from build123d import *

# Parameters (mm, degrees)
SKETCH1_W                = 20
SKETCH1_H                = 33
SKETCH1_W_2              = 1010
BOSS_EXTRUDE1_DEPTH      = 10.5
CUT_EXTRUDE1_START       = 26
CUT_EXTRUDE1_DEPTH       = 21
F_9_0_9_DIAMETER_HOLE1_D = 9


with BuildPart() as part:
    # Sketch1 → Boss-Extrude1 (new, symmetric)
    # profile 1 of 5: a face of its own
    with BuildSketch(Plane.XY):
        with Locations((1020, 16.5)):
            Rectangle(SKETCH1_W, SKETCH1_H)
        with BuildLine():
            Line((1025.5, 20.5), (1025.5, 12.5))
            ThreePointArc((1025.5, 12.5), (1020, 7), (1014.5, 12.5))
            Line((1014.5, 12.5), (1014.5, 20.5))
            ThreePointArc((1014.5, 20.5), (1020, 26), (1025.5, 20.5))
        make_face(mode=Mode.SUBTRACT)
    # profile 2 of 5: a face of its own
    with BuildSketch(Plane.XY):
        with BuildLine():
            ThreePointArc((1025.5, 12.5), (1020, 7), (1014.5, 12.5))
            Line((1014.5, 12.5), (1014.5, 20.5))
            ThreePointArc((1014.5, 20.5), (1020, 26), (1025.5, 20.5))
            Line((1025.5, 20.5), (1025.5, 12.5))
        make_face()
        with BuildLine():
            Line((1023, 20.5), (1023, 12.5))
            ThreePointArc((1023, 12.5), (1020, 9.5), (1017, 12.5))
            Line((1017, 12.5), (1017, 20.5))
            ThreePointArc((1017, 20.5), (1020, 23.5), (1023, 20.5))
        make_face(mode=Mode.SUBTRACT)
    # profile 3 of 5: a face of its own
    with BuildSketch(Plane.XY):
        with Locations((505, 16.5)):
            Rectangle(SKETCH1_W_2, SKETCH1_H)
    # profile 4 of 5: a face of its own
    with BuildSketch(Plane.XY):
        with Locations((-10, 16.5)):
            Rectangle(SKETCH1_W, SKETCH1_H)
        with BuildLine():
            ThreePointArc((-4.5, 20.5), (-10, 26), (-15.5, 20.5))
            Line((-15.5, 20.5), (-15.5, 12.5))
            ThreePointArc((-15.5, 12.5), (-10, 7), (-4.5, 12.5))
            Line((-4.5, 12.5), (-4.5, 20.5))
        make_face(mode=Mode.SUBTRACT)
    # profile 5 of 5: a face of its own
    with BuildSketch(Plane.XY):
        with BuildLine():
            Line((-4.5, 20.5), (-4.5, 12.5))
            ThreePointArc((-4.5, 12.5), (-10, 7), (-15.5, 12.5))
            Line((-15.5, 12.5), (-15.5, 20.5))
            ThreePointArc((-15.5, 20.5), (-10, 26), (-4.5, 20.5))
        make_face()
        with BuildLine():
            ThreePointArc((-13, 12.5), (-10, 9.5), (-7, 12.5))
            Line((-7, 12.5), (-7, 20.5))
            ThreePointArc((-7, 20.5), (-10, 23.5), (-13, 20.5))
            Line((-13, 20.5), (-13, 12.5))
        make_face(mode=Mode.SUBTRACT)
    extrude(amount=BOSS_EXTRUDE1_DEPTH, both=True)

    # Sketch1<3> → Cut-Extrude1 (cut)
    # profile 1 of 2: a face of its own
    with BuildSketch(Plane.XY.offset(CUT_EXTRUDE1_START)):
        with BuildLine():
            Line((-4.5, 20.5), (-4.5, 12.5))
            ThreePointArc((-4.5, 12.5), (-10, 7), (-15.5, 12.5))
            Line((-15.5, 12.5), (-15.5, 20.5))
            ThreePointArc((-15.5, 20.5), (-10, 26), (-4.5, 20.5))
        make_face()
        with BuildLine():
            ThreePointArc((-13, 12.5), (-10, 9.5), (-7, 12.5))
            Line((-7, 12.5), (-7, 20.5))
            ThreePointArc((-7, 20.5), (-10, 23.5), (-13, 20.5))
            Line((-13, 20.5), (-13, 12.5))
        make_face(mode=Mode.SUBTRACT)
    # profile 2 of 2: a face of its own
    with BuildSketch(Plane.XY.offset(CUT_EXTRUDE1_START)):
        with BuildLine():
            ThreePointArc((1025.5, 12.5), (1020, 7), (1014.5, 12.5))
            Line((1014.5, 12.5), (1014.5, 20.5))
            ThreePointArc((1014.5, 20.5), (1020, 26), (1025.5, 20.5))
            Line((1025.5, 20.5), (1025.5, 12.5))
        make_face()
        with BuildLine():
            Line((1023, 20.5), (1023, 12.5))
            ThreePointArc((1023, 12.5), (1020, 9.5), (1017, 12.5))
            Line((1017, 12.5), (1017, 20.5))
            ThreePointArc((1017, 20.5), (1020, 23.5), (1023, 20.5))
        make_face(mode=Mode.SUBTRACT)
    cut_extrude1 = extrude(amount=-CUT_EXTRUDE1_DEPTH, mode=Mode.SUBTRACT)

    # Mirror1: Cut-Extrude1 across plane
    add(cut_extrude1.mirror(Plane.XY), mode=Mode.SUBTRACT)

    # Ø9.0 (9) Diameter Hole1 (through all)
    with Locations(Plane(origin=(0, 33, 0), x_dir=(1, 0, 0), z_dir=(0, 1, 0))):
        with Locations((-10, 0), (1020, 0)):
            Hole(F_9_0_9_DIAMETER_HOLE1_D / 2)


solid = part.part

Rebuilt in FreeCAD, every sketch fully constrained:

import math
import FreeCAD as App
import Part
import Sketcher
from FreeCAD import Vector


def add_polygon(sketch, points):
    """Adds a closed chain of lines whose ends are joined by coincident constraints."""
    first, n = sketch.GeometryCount, len(points)
    for a, b in zip(points, points[1:] + points[:1]):
        sketch.addGeometry(Part.LineSegment(App.Vector(*a, 0), App.Vector(*b, 0)), False)
    for i in range(n):
        sketch.addConstraint(Sketcher.Constraint("Coincident", first + i, 2, first + (i + 1) % n, 1))

doc = App.newDocument("Part")
params = doc.addObject("Spreadsheet::Sheet", "Params")
for row, (alias, value) in enumerate([
    ("sketch1_radius", "3 mm"),
    ("sketch1_width", "1050 mm"),
    ("sketch1_height", "33 mm"),
    ("sketch1_height2", "8 mm"),
    ("pad1_length", "21 mm"),
    ("sketch2_radius", "3 mm"),
    ("sketch2_radius2", "5.5 mm"),
    ("sketch2_height", "8 mm"),
    ("pocket1_length", "21 mm"),
    ("sketch3_diameter", "9 mm"),
    ("hole_diameter", "9 mm"),
], start=1):
    params.set(f"A{row}", alias)
    params.set(f"B{row}", "=" + value)
    params.setAlias(f"B{row}", alias)

body = doc.addObject("PartDesign::Body", "Body")

sketch1 = body.newObject("Sketcher::SketchObject", "Sketch")
sketch1.AttachmentSupport = (doc.getObject("XY_Plane"), [""])
sketch1.MapMode = "FlatFace"
add_polygon(sketch1, [(1030, 0), (1030, 33), (-20, 33), (-20, 0)])
sketch1.addGeometry(Part.ArcOfCircle(Part.Circle(Vector(1020, 12.5, 0), Vector(0, 0, 1), 3), math.radians(180), math.radians(360)), False)
sketch1.addGeometry(Part.LineSegment(Vector(1017, 12.5, 0), Vector(1017, 20.5, 0)), False)
sketch1.addGeometry(Part.ArcOfCircle(Part.Circle(Vector(1020, 20.5, 0), Vector(0, 0, 1), 3), math.radians(0), math.radians(180)), False)
sketch1.addGeometry(Part.LineSegment(Vector(1023, 20.5, 0), Vector(1023, 12.5, 0)), False)
sketch1.addGeometry(Part.ArcOfCircle(Part.Circle(Vector(-10, 12.5, 0), Vector(0, 0, 1), 3), math.radians(180), math.radians(360)), False)
sketch1.addGeometry(Part.LineSegment(Vector(-13, 12.5, 0), Vector(-13, 20.5, 0)), False)
sketch1.addGeometry(Part.ArcOfCircle(Part.Circle(Vector(-10, 20.5, 0), Vector(0, 0, 1), 3), math.radians(0), math.radians(180)), False)
sketch1.addGeometry(Part.LineSegment(Vector(-7, 20.5, 0), Vector(-7, 12.5, 0)), False)
sketch1.addConstraint([
    Sketcher.Constraint("Tangent", 4, 1, 5, 1),
    Sketcher.Constraint("Tangent", 5, 2, 6, 2),
    Sketcher.Constraint("Tangent", 6, 1, 7, 1),
    Sketcher.Constraint("Tangent", 7, 2, 4, 2),
    Sketcher.Constraint("Tangent", 8, 1, 9, 1),
    Sketcher.Constraint("Tangent", 9, 2, 10, 2),
    Sketcher.Constraint("Tangent", 10, 1, 11, 1),
    Sketcher.Constraint("Tangent", 11, 2, 8, 2),
    Sketcher.Constraint("Vertical", 0),
    Sketcher.Constraint("Horizontal", 1),
    Sketcher.Constraint("Vertical", 2),
    Sketcher.Constraint("Horizontal", 3),
    Sketcher.Constraint("Vertical", 5),
    Sketcher.Constraint("Vertical", 7),
    Sketcher.Constraint("Vertical", 9),
    Sketcher.Constraint("Vertical", 11),
    Sketcher.Constraint("Equal", 6, 8),
    Sketcher.Constraint("PointOnObject", 2, 2, -1),
    Sketcher.Constraint("Horizontal", 4, 3, 8, 3),
    Sketcher.Constraint("Horizontal", 6, 3, 10, 3),
    Sketcher.Constraint("Radius", 4, 3.0),
    Sketcher.Constraint("DistanceX", 1, 2, 1, 1, 1050.0),
    Sketcher.Constraint("DistanceY", 0, 1, 0, 2, 33.0),
    Sketcher.Constraint("DistanceY", 5, 1, 5, 2, 8.0),
    Sketcher.Constraint("DistanceX", -1, 1, 4, 3, 1020.0),
    Sketcher.Constraint("DistanceX", 8, 3, -1, 1, 10.0),
    Sketcher.Constraint("DistanceX", -1, 1, 0, 2, 1030.0),
    Sketcher.Constraint("DistanceY", -1, 1, 4, 3, 12.5),
])
sketch1.setExpression("Constraints[24]", "Params.sketch1_radius")
sketch1.setExpression("Constraints[25]", "Params.sketch1_width")
sketch1.setExpression("Constraints[26]", "Params.sketch1_height")
sketch1.setExpression("Constraints[27]", "Params.sketch1_height2")
pad1 = body.newObject("PartDesign::Pad", "Pad")
pad1.Profile = sketch1
pad1.setExpression("Length", "Params.pad1_length")
pad1.Midplane = True

sketch2 = body.newObject("Sketcher::SketchObject", "Sketch001")
sketch2.AttachmentSupport = (doc.getObject("XY_Plane"), [""])
sketch2.MapMode = "FlatFace"
sketch2.AttachmentOffset = App.Placement(Vector(0, 0, 26), App.Rotation())
sketch2.addGeometry([
    Part.LineSegment(Vector(-4.5, 12.5, 0), Vector(-4.5, 20.5, 0)),
    Part.ArcOfCircle(Part.Circle(Vector(-10, 20.5, 0), Vector(0, 0, 1), 5.5), math.radians(0), math.radians(180)),
    Part.LineSegment(Vector(-15.5, 20.5, 0), Vector(-15.5, 12.5, 0)),
    Part.ArcOfCircle(Part.Circle(Vector(-10, 12.5, 0), Vector(0, 0, 1), 5.5), math.radians(180), math.radians(360)),
    Part.LineSegment(Vector(-13, 12.5, 0), Vector(-13, 20.5, 0)),
    Part.ArcOfCircle(Part.Circle(Vector(-10, 20.5, 0), Vector(0, 0, 1), 3), math.radians(0), math.radians(180)),
    Part.LineSegment(Vector(-7, 20.5, 0), Vector(-7, 12.5, 0)),
    Part.ArcOfCircle(Part.Circle(Vector(-10, 12.5, 0), Vector(0, 0, 1), 3), math.radians(180), math.radians(360)),
    Part.ArcOfCircle(Part.Circle(Vector(1020, 12.5, 0), Vector(0, 0, 1), 5.5), math.radians(180), math.radians(360)),
    Part.LineSegment(Vector(1025.5, 12.5, 0), Vector(1025.5, 20.5, 0)),
    Part.ArcOfCircle(Part.Circle(Vector(1020, 20.5, 0), Vector(0, 0, 1), 5.5), math.radians(0), math.radians(180)),
    Part.LineSegment(Vector(1014.5, 20.5, 0), Vector(1014.5, 12.5, 0)),
    Part.LineSegment(Vector(1023, 20.5, 0), Vector(1023, 12.5, 0)),
    Part.ArcOfCircle(Part.Circle(Vector(1020, 12.5, 0), Vector(0, 0, 1), 3), math.radians(180), math.radians(360)),
    Part.LineSegment(Vector(1017, 12.5, 0), Vector(1017, 20.5, 0)),
    Part.ArcOfCircle(Part.Circle(Vector(1020, 20.5, 0), Vector(0, 0, 1), 3), math.radians(0), math.radians(180)),
], False)
sketch2.addConstraint([
    Sketcher.Constraint("Tangent", 0, 2, 1, 1),
    Sketcher.Constraint("Tangent", 1, 2, 2, 1),
    Sketcher.Constraint("Tangent", 2, 2, 3, 1),
    Sketcher.Constraint("Tangent", 3, 2, 0, 1),
    Sketcher.Constraint("Tangent", 4, 2, 5, 2),
    Sketcher.Constraint("Tangent", 5, 1, 6, 1),
    Sketcher.Constraint("Tangent", 6, 2, 7, 2),
    Sketcher.Constraint("Tangent", 7, 1, 4, 1),
    Sketcher.Constraint("Tangent", 8, 2, 9, 1),
    Sketcher.Constraint("Tangent", 9, 2, 10, 1),
    Sketcher.Constraint("Tangent", 10, 2, 11, 1),
    Sketcher.Constraint("Tangent", 11, 2, 8, 1),
    Sketcher.Constraint("Tangent", 12, 2, 13, 2),
    Sketcher.Constraint("Tangent", 13, 1, 14, 1),
    Sketcher.Constraint("Tangent", 14, 2, 15, 2),
    Sketcher.Constraint("Tangent", 15, 1, 12, 1),
    Sketcher.Constraint("Vertical", 0),
    Sketcher.Constraint("Vertical", 2),
    Sketcher.Constraint("Vertical", 4),
    Sketcher.Constraint("Vertical", 6),
    Sketcher.Constraint("Vertical", 9),
    Sketcher.Constraint("Vertical", 11),
    Sketcher.Constraint("Vertical", 12),
    Sketcher.Constraint("Vertical", 14),
    Sketcher.Constraint("Coincident", 5, 3, 1, 3),
    Sketcher.Constraint("Coincident", 13, 3, 8, 3),
    Sketcher.Constraint("Equal", 3, 8),
    Sketcher.Constraint("Equal", 7, 13),
    Sketcher.Constraint("Horizontal", 7, 3, 8, 3),
    Sketcher.Constraint("Horizontal", 5, 3, 10, 3),
    Sketcher.Constraint("Horizontal", 5, 3, 15, 3),
    Sketcher.Constraint("Horizontal", 13, 3, 2, 2),
    Sketcher.Constraint("Radius", 5, 3.0),
    Sketcher.Constraint("Radius", 1, 5.5),
    Sketcher.Constraint("DistanceY", 0, 1, 0, 2, 8.0),
    Sketcher.Constraint("DistanceX", 1, 3, -1, 1, 10.0),
    Sketcher.Constraint("DistanceX", -1, 1, 8, 3, 1020.0),
    Sketcher.Constraint("DistanceY", -1, 1, 1, 3, 20.5),
])
sketch2.setExpression("Constraints[32]", "Params.sketch2_radius")
sketch2.setExpression("Constraints[33]", "Params.sketch2_radius2")
sketch2.setExpression("Constraints[34]", "Params.sketch2_height")
pocket1 = body.newObject("PartDesign::Pocket", "Pocket")
pocket1.Profile = sketch2
pocket1.setExpression("Length", "Params.pocket1_length")
doc.recompute()

mirrored = body.newObject("PartDesign::Mirrored", "Mirrored")
mirrored.Originals = [pocket1]
mirrored.MirrorPlane = (doc.getObject("XY_Plane"), [""])
body.Tip = mirrored

sketch3 = body.newObject("Sketcher::SketchObject", "Sketch002")
sketch3.AttachmentSupport = (doc.getObject("XZ_Plane"), [""])
sketch3.MapMode = "FlatFace"
sketch3.AttachmentOffset = App.Placement(Vector(0, 0, -33), App.Rotation())
sketch3.addGeometry([
    Part.Circle(Vector(-10, 0, 0), Vector(0, 0, 1), 4.5),
    Part.Circle(Vector(1020, 0, 0), Vector(0, 0, 1), 4.5),
], False)
sketch3.addConstraint([
    Sketcher.Constraint("Equal", 0, 1),
    Sketcher.Constraint("PointOnObject", 0, 3, -1),
    Sketcher.Constraint("PointOnObject", 1, 3, -1),
    Sketcher.Constraint("Diameter", 0, 9.0),
    Sketcher.Constraint("DistanceX", 0, 3, -1, 1, 10.0),
    Sketcher.Constraint("DistanceX", -1, 1, 1, 3, 1020.0),
])
sketch3.setExpression("Constraints[3]", "Params.sketch3_diameter")
doc.recompute()
hole = body.newObject("PartDesign::Hole", "Hole")
hole.Profile = sketch3
hole.ThreadType = "None"
hole.setExpression("Diameter", "Params.hole_diameter")
hole.DepthType = "ThroughAll"
hole.Reversed = True

doc.recompute()
